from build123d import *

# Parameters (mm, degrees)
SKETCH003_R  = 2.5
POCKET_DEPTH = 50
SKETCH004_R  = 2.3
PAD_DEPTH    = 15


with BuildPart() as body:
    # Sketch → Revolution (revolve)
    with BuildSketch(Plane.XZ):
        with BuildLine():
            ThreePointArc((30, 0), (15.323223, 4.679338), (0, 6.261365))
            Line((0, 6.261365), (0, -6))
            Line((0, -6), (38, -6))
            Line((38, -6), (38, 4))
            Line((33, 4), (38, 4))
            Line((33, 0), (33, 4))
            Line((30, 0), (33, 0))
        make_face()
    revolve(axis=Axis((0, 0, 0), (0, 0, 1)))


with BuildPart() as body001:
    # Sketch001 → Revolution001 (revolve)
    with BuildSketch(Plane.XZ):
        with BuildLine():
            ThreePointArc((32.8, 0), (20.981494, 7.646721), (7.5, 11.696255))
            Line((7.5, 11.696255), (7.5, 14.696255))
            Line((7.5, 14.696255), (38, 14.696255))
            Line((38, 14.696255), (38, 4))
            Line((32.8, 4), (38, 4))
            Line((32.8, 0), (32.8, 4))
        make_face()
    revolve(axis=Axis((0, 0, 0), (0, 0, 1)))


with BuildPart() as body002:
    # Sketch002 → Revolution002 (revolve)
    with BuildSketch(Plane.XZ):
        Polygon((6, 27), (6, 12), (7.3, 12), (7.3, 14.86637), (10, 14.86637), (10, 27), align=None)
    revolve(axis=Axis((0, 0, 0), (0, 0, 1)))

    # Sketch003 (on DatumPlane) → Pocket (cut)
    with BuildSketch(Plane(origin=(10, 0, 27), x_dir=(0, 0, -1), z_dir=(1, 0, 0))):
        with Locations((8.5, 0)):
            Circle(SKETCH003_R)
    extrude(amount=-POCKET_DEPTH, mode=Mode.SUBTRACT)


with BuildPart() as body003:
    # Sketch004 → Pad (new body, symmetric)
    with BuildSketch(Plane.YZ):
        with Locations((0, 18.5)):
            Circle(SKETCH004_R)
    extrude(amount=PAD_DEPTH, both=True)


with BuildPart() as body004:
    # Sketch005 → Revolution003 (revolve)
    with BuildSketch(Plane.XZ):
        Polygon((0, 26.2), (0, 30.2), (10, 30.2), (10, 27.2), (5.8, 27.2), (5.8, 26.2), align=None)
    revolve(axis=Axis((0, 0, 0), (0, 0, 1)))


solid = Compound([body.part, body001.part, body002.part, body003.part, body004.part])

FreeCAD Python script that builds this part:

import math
import FreeCAD as App
import Part
import Sketcher

V = App.Vector
Q = App.Units.Quantity


def add_polygon(sketch, points):
    """Adds a closed chain of lines whose ends are joined by coincident constraints."""
    first, n = sketch.GeometryCount, len(points)
    for a, b in zip(points, points[1:] + points[:1]):
        sketch.addGeometry(Part.LineSegment(App.Vector(*a, 0), App.Vector(*b, 0)), False)
    for i in range(n):
        sketch.addConstraint(Sketcher.Constraint("Coincident", first + i, 2, first + (i + 1) % n, 1))

doc = App.newDocument("Part")
body = doc.addObject("PartDesign::Body", "Body")

sketch1 = body.newObject("Sketcher::SketchObject", "Sketch")
sketch1.AttachmentSupport = (doc.getObject("XZ_Plane"), [""])
sketch1.MapMode = "FlatFace"
sketch1.addGeometry(Part.ArcOfCircle(Part.Circle(V(-0.000004, -68.73865, 0), V(0, 0, 1), 75.000015), math.radians(66.421823), math.radians(89.999997)), False)
sketch1.addGeometry(Part.LineSegment(V(0, 6.261365, 0), V(0, -6, 0)), False)
sketch1.addGeometry(Part.LineSegment(V(0, -6, 0), V(38, -6, 0)), False)
sketch1.addGeometry(Part.LineSegment(V(38, -6, 0), V(38, 4, 0)), False)
sketch1.addGeometry(Part.LineSegment(V(38, 4, 0), V(33, 4, 0)), False)
sketch1.addGeometry(Part.LineSegment(V(33, 4, 0), V(33, 0, 0)), False)
sketch1.addGeometry(Part.LineSegment(V(33, 0, 0), V(30, 0, 0)), False)
sketch1.addConstraint(Sketcher.Constraint("Coincident", 0, 2, 1, 1))
sketch1.addConstraint(Sketcher.Constraint("Coincident", 1, 2, 2, 1))
sketch1.addConstraint(Sketcher.Constraint("Coincident", 2, 2, 3, 1))
sketch1.addConstraint(Sketcher.Constraint("Coincident", 3, 2, 4, 1))
sketch1.addConstraint(Sketcher.Constraint("Coincident", 4, 2, 5, 1))
sketch1.addConstraint(Sketcher.Constraint("Coincident", 5, 2, 6, 1))
sketch1.addConstraint(Sketcher.Constraint("Coincident", 6, 2, 0, 1))
sketch1.addConstraint(Sketcher.Constraint("Vertical", 1))
sketch1.addConstraint(Sketcher.Constraint("Horizontal", 2))
sketch1.addConstraint(Sketcher.Constraint("Vertical", 3))
sketch1.addConstraint(Sketcher.Constraint("Horizontal", 4))
sketch1.addConstraint(Sketcher.Constraint("Vertical", 5))
sketch1.addConstraint(Sketcher.Constraint("Horizontal", 6))
sketch1.addConstraint(Sketcher.Constraint("PointOnObject", 0, 2, -2))
sketch1.addConstraint(Sketcher.Constraint("PointOnObject", 5, 2, -1))
sketch1.addConstraint(Sketcher.Constraint("DistanceX", 2, 1, 2, 2, Q("38 mm")))
sketch1.addConstraint(Sketcher.Constraint("DistanceX", 4, 2, 4, 1, Q("5 mm")))
sketch1.addConstraint(Sketcher.Constraint("DistanceX", 6, 2, 6, 1, Q("3 mm")))
sketch1.addConstraint(Sketcher.Constraint("DistanceY", 3, 1, 3, 2, Q("10 mm")))
sketch1.addConstraint(Sketcher.Constraint("DistanceY", 5, 2, 5, 1, Q("4 mm")))
sketch1.addConstraint(Sketcher.Constraint("Radius", 0, Q("75.000015 mm")))
sketch1.addConstraint(Sketcher.Constraint("DistanceY", 1, 2, 1, 1, Q("12.261365 mm")))
revolution = body.newObject("PartDesign::Revolution", "Revolution")
revolution.Profile = sketch1
revolution.ReferenceAxis = (sketch1, ["V_Axis"])
revolution.Angle = 360
body2 = doc.addObject("PartDesign::Body", "Body001")

sketch2 = body2.newObject("Sketcher::SketchObject", "Sketch001")
sketch2.AttachmentSupport = (doc.getObject("XZ_Plane001"), [""])
sketch2.MapMode = "FlatFace"
sketch2.addGeometry(Part.ArcOfCircle(Part.Circle(V(0.000005, -37.738034, 0), V(0, 0, 1), 49.999989), math.radians(49.004478), math.radians(81.373078)), False)
sketch2.addGeometry(Part.LineSegment(V(32.8, 0, 0), V(32.8, 4, 0)), False)
sketch2.addGeometry(Part.LineSegment(V(32.8, 4, 0), V(38, 4, 0)), False)
sketch2.addGeometry(Part.LineSegment(V(38, 4, 0), V(38, 14.696255, 0)), False)
sketch2.addGeometry(Part.LineSegment(V(38, 14.696255, 0), V(7.5, 14.696255, 0)), False)
sketch2.addGeometry(Part.LineSegment(V(7.5, 14.696255, 0), V(7.5, 11.696255, 0)), False)
sketch2.addConstraint(Sketcher.Constraint("Coincident", 0, 1, 1, 1))
sketch2.addConstraint(Sketcher.Constraint("Coincident", 1, 2, 2, 1))
sketch2.addConstraint(Sketcher.Constraint("Coincident", 2, 2, 3, 1))
sketch2.addConstraint(Sketcher.Constraint("Coincident", 3, 2, 4, 1))
sketch2.addConstraint(Sketcher.Constraint("Coincident", 4, 2, 5, 1))
sketch2.addConstraint(Sketcher.Constraint("Coincident", 5, 2, 0, 2))
sketch2.addConstraint(Sketcher.Constraint("Vertical", 1))
sketch2.addConstraint(Sketcher.Constraint("Horizontal", 2))
sketch2.addConstraint(Sketcher.Constraint("Vertical", 3))
sketch2.addConstraint(Sketcher.Constraint("Horizontal", 4))
sketch2.addConstraint(Sketcher.Constraint("Vertical", 5))
sketch2.addConstraint(Sketcher.Constraint("PointOnObject", 0, 1, -1))
sketch2.addConstraint(Sketcher.Constraint("DistanceY", 1, 1, 1, 2, Q("4 mm")))
sketch2.addConstraint(Sketcher.Constraint("DistanceY", 5, 2, 5, 1, Q("3 mm")))
sketch2.addConstraint(Sketcher.Constraint("DistanceX", 2, 1, 2, 2, Q("5.2 mm")))
sketch2.addConstraint(Sketcher.Constraint("DistanceX", 4, 2, 4, 1, Q("30.5 mm")))
sketch2.addConstraint(Sketcher.Constraint("DistanceX", -1, 1, 2, 2, Q("38 mm")))
sketch2.addConstraint(Sketcher.Constraint("Radius", 0, Q("49.999989 mm")))
sketch2.addConstraint(Sketcher.Constraint("DistanceY", 3, 1, 3, 2, Q("10.696255 mm")))
revolution2 = body2.newObject("PartDesign::Revolution", "Revolution001")
revolution2.Profile = sketch2
revolution2.ReferenceAxis = (sketch2, ["V_Axis"])
revolution2.Angle = 360
body3 = doc.addObject("PartDesign::Body", "Body002")

sketch3 = body3.newObject("Sketcher::SketchObject", "Sketch002")
sketch3.AttachmentSupport = (doc.getObject("XZ_Plane002"), [""])
sketch3.MapMode = "FlatFace"
add_polygon(sketch3, [(6, 27), (6, 12), (7.3, 12), (7.3, 14.86637), (10, 14.86637), (10, 27)])
sketch3.addConstraint(Sketcher.Constraint("Vertical", 0))
sketch3.addConstraint(Sketcher.Constraint("Horizontal", 1))
sketch3.addConstraint(Sketcher.Constraint("Vertical", 2))
sketch3.addConstraint(Sketcher.Constraint("Horizontal", 3))
sketch3.addConstraint(Sketcher.Constraint("Vertical", 4))
sketch3.addConstraint(Sketcher.Constraint("Horizontal", 5))
sketch3.addConstraint(Sketcher.Constraint("DistanceX", 5, 2, 5, 1, Q("4 mm")))
sketch3.addConstraint(Sketcher.Constraint("DistanceY", 0, 2, 0, 1, Q("15 mm")))
sketch3.addConstraint(Sketcher.Constraint("DistanceX", 1, 1, 1, 2, Q("1.3 mm")))
sketch3.addConstraint(Sketcher.Constraint("DistanceX", -1, 1, 0, 2, Q("6 mm")))
sketch3.addConstraint(Sketcher.Constraint("DistanceY", -1, 1, 0, 2, Q("12 mm")))
sketch3.addConstraint(Sketcher.Constraint("DistanceY", 2, 1, 2, 2, Q("2.86637 mm")))
revolution3 = body3.newObject("PartDesign::Revolution", "Revolution002")
revolution3.Profile = sketch3
revolution3.ReferenceAxis = (sketch3, ["V_Axis"])
revolution3.Angle = 360

sketch4 = body3.newObject("Sketcher::SketchObject", "Sketch003")
sketch4.AttachmentSupport = (doc.getObject("YZ_Plane002"), [""])
sketch4.MapMode = "FlatFace"
sketch4.AttachmentOffset = App.Placement(V(0, 0, 10), App.Rotation())
sketch4.addGeometry(Part.Circle(V(0, 18.5, 0), V(0, 0, 1), 2.5), False)
sketch4.addConstraint(Sketcher.Constraint("PointOnObject", 0, 3, -2))
sketch4.addConstraint(Sketcher.Constraint("Diameter", 0, Q("5 mm")))
sketch4.addConstraint(Sketcher.Constraint("DistanceY", -1, 1, 0, 3, Q("18.5 mm")))
pocket1 = body3.newObject("PartDesign::Pocket", "Pocket")
pocket1.Profile = sketch4
pocket1.Length = 50
body4 = doc.addObject("PartDesign::Body", "Body003")

sketch5 = body4.newObject("Sketcher::SketchObject", "Sketch004")
sketch5.AttachmentSupport = (doc.getObject("YZ_Plane003"), [""])
sketch5.MapMode = "FlatFace"
sketch5.addGeometry(Part.Circle(V(0, 18.5, 0), V(0, 0, 1), 2.3), False)
sketch5.addConstraint(Sketcher.Constraint("PointOnObject", 0, 3, -2))
sketch5.addConstraint(Sketcher.Constraint("Diameter", 0, Q("4.6 mm")))
sketch5.addConstraint(Sketcher.Constraint("DistanceY", -1, 1, 0, 3, Q("18.5 mm")))
pad1 = body4.newObject("PartDesign::Pad", "Pad")
pad1.Profile = sketch5
pad1.Length = 30
pad1.Midplane = True
body5 = doc.addObject("PartDesign::Body", "Body004")

sketch6 = body5.newObject("Sketcher::SketchObject", "Sketch005")
sketch6.AttachmentSupport = (doc.getObject("XZ_Plane004"), [""])
sketch6.MapMode = "FlatFace"
add_polygon(sketch6, [(0, 30.2), (0, 26.2), (5.8, 26.2), (5.8, 27.2), (10, 27.2), (10, 30.2)])
sketch6.addConstraint(Sketcher.Constraint("Vertical", 0))
sketch6.addConstraint(Sketcher.Constraint("Horizontal", 1))
sketch6.addConstraint(Sketcher.Constraint("Vertical", 2))
sketch6.addConstraint(Sketcher.Constraint("Horizontal", 3))
sketch6.addConstraint(Sketcher.Constraint("Vertical", 4))
sketch6.addConstraint(Sketcher.Constraint("Horizontal", 5))
sketch6.addConstraint(Sketcher.Constraint("PointOnObject", 0, 2, -2))
sketch6.addConstraint(Sketcher.Constraint("DistanceX", 5, 2, 5, 1, Q("10 mm")))
sketch6.addConstraint(Sketcher.Constraint("DistanceY", 0, 2, 0, 1, Q("4 mm")))
sketch6.addConstraint(Sketcher.Constraint("DistanceY", 2, 1, 2, 2, Q("1 mm")))
sketch6.addConstraint(Sketcher.Constraint("DistanceX", 1, 1, 1, 2, Q("5.8 mm")))
sketch6.addConstraint(Sketcher.Constraint("DistanceY", -1, 1, 0, 2, Q("26.2 mm")))
revolution4 = body5.newObject("PartDesign::Revolution", "Revolution003")
revolution4.Profile = sketch6
revolution4.ReferenceAxis = (sketch6, ["V_Axis"])
revolution4.Angle = 360

doc.recompute()
